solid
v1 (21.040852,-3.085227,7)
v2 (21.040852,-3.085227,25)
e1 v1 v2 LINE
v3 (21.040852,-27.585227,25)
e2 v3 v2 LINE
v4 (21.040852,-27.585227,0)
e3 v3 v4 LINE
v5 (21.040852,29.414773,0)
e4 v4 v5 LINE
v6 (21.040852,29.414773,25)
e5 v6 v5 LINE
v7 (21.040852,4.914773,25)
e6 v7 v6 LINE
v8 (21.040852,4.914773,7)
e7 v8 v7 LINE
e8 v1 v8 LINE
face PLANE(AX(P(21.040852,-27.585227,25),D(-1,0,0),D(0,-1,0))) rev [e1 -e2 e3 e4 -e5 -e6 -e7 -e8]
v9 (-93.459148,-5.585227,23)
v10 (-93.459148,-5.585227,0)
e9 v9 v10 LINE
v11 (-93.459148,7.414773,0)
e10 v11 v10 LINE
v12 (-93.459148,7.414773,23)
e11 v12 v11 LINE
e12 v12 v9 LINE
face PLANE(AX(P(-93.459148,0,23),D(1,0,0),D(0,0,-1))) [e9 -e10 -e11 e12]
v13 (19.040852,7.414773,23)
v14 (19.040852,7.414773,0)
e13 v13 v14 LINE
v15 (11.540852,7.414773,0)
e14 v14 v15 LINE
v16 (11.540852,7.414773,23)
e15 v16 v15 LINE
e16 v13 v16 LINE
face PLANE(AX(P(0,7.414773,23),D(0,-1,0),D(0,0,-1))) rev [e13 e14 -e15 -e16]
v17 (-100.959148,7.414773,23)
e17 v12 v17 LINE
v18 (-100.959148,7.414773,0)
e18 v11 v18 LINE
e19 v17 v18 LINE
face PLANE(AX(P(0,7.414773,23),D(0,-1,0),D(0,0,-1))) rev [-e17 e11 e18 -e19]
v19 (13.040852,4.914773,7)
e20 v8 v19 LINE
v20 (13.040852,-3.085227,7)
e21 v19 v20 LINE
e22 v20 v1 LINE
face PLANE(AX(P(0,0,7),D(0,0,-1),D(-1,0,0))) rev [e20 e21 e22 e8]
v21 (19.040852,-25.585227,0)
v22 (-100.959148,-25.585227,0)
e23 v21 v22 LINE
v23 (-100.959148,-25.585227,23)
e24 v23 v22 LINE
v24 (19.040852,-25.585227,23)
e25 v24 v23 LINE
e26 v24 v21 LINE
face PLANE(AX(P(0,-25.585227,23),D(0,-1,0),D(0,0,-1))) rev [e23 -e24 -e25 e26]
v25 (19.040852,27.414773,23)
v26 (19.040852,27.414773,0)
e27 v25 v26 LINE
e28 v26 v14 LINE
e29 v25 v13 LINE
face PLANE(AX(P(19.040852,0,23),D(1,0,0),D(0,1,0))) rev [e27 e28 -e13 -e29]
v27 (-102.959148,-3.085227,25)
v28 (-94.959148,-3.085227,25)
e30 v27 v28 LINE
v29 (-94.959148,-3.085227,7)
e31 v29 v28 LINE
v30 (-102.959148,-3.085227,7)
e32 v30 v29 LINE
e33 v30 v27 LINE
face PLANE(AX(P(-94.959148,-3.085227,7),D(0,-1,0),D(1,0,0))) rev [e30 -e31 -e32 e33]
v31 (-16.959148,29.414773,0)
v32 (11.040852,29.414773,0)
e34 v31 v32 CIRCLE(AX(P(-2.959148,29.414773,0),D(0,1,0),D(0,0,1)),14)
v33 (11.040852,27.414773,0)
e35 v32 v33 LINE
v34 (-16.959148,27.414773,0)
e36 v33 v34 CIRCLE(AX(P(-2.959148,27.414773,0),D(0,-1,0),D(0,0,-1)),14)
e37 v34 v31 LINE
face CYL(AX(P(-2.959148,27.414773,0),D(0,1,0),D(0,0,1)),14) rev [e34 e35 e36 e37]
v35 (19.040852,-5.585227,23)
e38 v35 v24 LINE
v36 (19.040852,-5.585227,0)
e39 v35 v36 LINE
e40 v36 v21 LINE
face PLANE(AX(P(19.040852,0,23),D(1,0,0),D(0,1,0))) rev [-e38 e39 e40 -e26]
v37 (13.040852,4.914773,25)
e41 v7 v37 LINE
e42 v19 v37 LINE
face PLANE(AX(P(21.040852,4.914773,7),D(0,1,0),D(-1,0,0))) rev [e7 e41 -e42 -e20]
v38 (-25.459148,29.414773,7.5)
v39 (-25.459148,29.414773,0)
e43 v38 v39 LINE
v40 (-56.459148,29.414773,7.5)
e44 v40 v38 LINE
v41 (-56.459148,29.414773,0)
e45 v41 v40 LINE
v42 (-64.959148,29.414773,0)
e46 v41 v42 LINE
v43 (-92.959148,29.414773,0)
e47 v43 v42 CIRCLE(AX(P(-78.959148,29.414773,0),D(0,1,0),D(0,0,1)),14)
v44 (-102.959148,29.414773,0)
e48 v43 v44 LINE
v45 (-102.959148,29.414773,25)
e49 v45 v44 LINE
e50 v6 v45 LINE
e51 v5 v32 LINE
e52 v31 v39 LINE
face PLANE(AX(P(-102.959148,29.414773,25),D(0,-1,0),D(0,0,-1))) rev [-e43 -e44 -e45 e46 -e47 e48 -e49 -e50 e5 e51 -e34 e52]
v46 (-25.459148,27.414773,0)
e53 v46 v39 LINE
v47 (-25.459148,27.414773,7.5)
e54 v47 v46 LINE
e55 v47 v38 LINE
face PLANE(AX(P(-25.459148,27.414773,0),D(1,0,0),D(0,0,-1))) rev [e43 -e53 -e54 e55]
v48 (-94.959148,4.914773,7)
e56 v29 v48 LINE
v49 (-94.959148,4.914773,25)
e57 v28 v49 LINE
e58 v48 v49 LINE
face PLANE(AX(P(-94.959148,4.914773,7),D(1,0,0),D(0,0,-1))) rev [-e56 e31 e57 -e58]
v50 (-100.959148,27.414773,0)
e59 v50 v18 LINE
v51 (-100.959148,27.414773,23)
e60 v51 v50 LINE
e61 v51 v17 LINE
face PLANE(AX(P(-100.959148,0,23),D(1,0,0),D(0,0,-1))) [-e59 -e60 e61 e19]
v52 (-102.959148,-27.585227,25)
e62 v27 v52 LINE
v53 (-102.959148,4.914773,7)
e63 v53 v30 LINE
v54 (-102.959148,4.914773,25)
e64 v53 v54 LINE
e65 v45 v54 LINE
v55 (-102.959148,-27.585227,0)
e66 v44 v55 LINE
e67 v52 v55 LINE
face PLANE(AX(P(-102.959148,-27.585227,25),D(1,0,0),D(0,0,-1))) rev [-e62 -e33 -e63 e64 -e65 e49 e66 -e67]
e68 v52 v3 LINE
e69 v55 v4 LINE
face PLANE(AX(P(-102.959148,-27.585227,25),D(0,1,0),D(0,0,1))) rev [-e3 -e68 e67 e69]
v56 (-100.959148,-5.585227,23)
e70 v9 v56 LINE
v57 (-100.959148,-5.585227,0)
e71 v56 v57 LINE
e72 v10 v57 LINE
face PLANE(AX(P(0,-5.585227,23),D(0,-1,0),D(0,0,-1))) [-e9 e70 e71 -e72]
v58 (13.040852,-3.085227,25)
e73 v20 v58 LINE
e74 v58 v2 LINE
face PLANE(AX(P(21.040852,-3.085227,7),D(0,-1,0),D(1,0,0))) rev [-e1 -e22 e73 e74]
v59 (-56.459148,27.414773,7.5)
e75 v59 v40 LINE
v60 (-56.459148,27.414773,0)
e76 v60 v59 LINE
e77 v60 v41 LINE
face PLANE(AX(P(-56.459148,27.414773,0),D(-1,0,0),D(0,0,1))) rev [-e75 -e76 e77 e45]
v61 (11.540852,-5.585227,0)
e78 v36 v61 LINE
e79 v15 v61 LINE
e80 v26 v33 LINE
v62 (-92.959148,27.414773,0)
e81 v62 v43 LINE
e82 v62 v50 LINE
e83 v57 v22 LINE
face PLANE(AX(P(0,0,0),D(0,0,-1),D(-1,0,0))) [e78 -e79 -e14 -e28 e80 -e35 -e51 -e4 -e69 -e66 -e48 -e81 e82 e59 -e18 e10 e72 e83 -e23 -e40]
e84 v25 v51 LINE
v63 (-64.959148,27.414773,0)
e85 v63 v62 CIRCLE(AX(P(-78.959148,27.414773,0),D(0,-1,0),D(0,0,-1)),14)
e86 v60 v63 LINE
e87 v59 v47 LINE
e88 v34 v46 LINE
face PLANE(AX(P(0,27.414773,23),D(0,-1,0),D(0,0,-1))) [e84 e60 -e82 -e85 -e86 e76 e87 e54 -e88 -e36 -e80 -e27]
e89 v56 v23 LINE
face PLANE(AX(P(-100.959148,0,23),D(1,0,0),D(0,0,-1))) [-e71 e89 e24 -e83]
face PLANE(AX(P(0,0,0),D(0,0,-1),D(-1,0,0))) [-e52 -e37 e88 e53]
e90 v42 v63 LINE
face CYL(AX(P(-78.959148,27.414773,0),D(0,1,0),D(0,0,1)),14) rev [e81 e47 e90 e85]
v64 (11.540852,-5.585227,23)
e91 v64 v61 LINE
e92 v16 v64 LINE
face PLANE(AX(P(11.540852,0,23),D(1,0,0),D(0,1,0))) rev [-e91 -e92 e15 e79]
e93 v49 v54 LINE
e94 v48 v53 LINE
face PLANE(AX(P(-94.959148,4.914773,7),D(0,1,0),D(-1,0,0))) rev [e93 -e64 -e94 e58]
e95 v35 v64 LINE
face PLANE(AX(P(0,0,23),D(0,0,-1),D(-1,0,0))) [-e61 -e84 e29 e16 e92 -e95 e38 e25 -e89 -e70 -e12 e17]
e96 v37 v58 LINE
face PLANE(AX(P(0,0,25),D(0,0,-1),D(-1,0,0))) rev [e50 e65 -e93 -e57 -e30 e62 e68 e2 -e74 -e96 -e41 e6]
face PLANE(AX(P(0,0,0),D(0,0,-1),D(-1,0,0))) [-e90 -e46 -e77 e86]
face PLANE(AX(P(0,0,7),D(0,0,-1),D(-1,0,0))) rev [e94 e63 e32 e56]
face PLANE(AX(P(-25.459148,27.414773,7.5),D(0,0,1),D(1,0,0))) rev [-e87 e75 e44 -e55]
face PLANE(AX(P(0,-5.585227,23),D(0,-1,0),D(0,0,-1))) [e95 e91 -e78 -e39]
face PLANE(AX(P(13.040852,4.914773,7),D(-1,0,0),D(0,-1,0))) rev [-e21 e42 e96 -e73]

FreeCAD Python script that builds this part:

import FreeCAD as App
import Part
import Sketcher
Q = App.Units.Quantity


def add_polygon(sketch, points):
    """Adds a closed chain of lines whose ends are joined by coincident constraints."""
    first, n = sketch.GeometryCount, len(points)
    for a, b in zip(points, points[1:] + points[:1]):
        sketch.addGeometry(Part.LineSegment(App.Vector(*a, 0), App.Vector(*b, 0)), False)
    for i in range(n):
        sketch.addConstraint(Sketcher.Constraint("Coincident", first + i, 2, first + (i + 1) % n, 1))

doc = App.newDocument("Part")
body = doc.addObject("PartDesign::Body", "Body")

sketch1 = doc.addObject("Sketcher::SketchObject", "Sketch")
body.addObject(sketch1)
sketch1.AttachmentSupport = (doc.XY_Plane, [""])
sketch1.MapMode = "FlatFace"
add_polygon(sketch1, [(-103, 29), (-103, -28), (21, -28), (21, 29)])
sketch1.addConstraint([
    Sketcher.Constraint("Vertical", 0),
    Sketcher.Constraint("Horizontal", 1),
    Sketcher.Constraint("Vertical", 2),
    Sketcher.Constraint("Horizontal", 3),
    Sketcher.Constraint("DistanceX", 1, 1, 1, 2, Q("124 mm")),
    Sketcher.Constraint("DistanceY", 0, 2, 0, 1, Q("57 mm")),
    Sketcher.Constraint("DistanceX", 0, 2, -1, 1, Q("102.959148 mm")),
    Sketcher.Constraint("DistanceY", 0, 2, -1, 1, Q("27.585227 mm")),
])
pad1 = doc.addObject("PartDesign::Pad", "Pad")
body.addObject(pad1)
pad1.Profile = sketch1
pad1.Length = 25

sketch2 = doc.addObject("Sketcher::SketchObject", "Sketch001")
body.addObject(sketch2)
sketch2.AttachmentSupport = (doc.XY_Plane, [""])
sketch2.MapMode = "FlatFace"
sketch2.AttachmentOffset = App.Placement(App.Vector(0, 0, 25), App.Rotation())
add_polygon(sketch2, [(13, 5), (13, -3), (21, -3), (21, 5)])
add_polygon(sketch2, [(-103, 5), (-103, -3), (-95, -3), (-95, 5)])
sketch2.addConstraint([
    Sketcher.Constraint("Vertical", 0),
    Sketcher.Constraint("Horizontal", 1),
    Sketcher.Constraint("Vertical", 2),
    Sketcher.Constraint("Horizontal", 3),
    Sketcher.Constraint("Vertical", 4),
    Sketcher.Constraint("Horizontal", 5),
    Sketcher.Constraint("Vertical", 6),
    Sketcher.Constraint("Horizontal", 7),
    Sketcher.Constraint("Horizontal", 1, 2, 4, 2),
    Sketcher.Constraint("Horizontal", 3, 2, 6, 2),
    Sketcher.Constraint("Equal", 3, 5),
    Sketcher.Constraint("Equal", 7, 0),
    Sketcher.Constraint("DistanceX", 1, 1, 1, 2, Q("8 mm")),
    Sketcher.Constraint("DistanceX", 4, 2, 0, 2, Q("116 mm")),
    Sketcher.Constraint("DistanceX", -1, 1, 0, 2, Q("13.040852 mm")),
    Sketcher.Constraint("DistanceY", 0, 2, -1, 1, Q("3.085227 mm")),
])
pocket1 = doc.addObject("PartDesign::Pocket", "Pocket")
body.addObject(pocket1)
pocket1.Profile = sketch2
pocket1.Length = 18

sketch3 = doc.addObject("Sketcher::SketchObject", "Sketch002")
body.addObject(sketch3)
sketch3.AttachmentSupport = (doc.XY_Plane, [""])
sketch3.MapMode = "FlatFace"
add_polygon(sketch3, [(19, 27), (19, 7), (12, 7), (12, -6), (19, -6), (19, -26), (-101, -26), (-101, -6), (-93, -6), (-93, 7), (-101, 7), (-101, 27)])
sketch3.addConstraint([
    Sketcher.Constraint("Vertical", 0),
    Sketcher.Constraint("Horizontal", 1),
    Sketcher.Constraint("Vertical", 2),
    Sketcher.Constraint("Horizontal", 3),
    Sketcher.Constraint("Vertical", 4),
    Sketcher.Constraint("Horizontal", 5),
    Sketcher.Constraint("Vertical", 6),
    Sketcher.Constraint("Horizontal", 7),
    Sketcher.Constraint("Vertical", 8),
    Sketcher.Constraint("Horizontal", 9),
    Sketcher.Constraint("Vertical", 10),
    Sketcher.Constraint("Horizontal", 11),
    Sketcher.Constraint("Horizontal", 3, 2, 6, 2),
    Sketcher.Constraint("Horizontal", 1, 2, 8, 2),
    Sketcher.Constraint("Vertical", 0, 2, 3, 2),
    Sketcher.Constraint("Vertical", 6, 2, 9, 2),
    Sketcher.Constraint("Equal", 3, 7),
    Sketcher.Constraint("Equal", 0, 4),
    Sketcher.Constraint("DistanceX", 5, 2, 5, 1, Q("120 mm")),
    Sketcher.Constraint("DistanceY", 0, 2, 0, 1, Q("20 mm")),
    Sketcher.Constraint("DistanceY", 2, 2, 2, 1, Q("13 mm")),
    Sketcher.Constraint("DistanceX", 1, 2, 1, 1, Q("7.5 mm")),
    Sketcher.Constraint("DistanceX", -1, 1, 0, 2, Q("19.040852 mm")),
    Sketcher.Constraint("DistanceY", -1, 1, 0, 2, Q("7.414773 mm")),
])
pocket2 = doc.addObject("PartDesign::Pocket", "Pocket001")
body.addObject(pocket2)
pocket2.Profile = sketch3
pocket2.Length = 23
pocket2.Reversed = True

sketch4 = doc.addObject("Sketcher::SketchObject", "Sketch003")
body.addObject(sketch4)
sketch4.AttachmentSupport = (doc.XZ_Plane, [""])
sketch4.MapMode = "FlatFace"
sketch4.AttachmentOffset = App.Placement(App.Vector(0, 0, -29.414773), App.Rotation())
sketch4.addGeometry(Part.Circle(App.Vector(-3, 0, 0), App.Vector(0, 0, 1), 14), False)
sketch4.addGeometry(Part.Circle(App.Vector(-79, 0, 0), App.Vector(0, 0, 1), 14), False)
add_polygon(sketch4, [(-56, 0), (-56, 8), (-25, 8), (-25, 0)])
sketch4.addConstraint([
    Sketcher.Constraint("Vertical", 2),
    Sketcher.Constraint("Horizontal", 3),
    Sketcher.Constraint("Vertical", 4),
    Sketcher.Constraint("Horizontal", 5),
    Sketcher.Constraint("Equal", 0, 1),
    Sketcher.Constraint("PointOnObject", 0, 3, -1),
    Sketcher.Constraint("PointOnObject", 1, 3, -1),
    Sketcher.Constraint("PointOnObject", 4, 2, -1),
    Sketcher.Constraint("Diameter", 0, Q("28 mm")),
    Sketcher.Constraint("DistanceX", 3, 1, 3, 2, Q("31 mm")),
    Sketcher.Constraint("DistanceY", 2, 1, 2, 2, Q("7.5 mm")),
    Sketcher.Constraint("DistanceX", 1, 3, 0, 3, Q("76 mm")),
    Sketcher.Constraint("DistanceX", 1, 3, 2, 2, Q("22.5 mm")),
    Sketcher.Constraint("DistanceX", 0, 3, -1, 1, Q("2.959148 mm")),
])
pocket3 = doc.addObject("PartDesign::Pocket", "Pocket002")
body.addObject(pocket3)
pocket3.Profile = sketch4
pocket3.Length = 2
pocket3.Reversed = True

doc.recompute()
